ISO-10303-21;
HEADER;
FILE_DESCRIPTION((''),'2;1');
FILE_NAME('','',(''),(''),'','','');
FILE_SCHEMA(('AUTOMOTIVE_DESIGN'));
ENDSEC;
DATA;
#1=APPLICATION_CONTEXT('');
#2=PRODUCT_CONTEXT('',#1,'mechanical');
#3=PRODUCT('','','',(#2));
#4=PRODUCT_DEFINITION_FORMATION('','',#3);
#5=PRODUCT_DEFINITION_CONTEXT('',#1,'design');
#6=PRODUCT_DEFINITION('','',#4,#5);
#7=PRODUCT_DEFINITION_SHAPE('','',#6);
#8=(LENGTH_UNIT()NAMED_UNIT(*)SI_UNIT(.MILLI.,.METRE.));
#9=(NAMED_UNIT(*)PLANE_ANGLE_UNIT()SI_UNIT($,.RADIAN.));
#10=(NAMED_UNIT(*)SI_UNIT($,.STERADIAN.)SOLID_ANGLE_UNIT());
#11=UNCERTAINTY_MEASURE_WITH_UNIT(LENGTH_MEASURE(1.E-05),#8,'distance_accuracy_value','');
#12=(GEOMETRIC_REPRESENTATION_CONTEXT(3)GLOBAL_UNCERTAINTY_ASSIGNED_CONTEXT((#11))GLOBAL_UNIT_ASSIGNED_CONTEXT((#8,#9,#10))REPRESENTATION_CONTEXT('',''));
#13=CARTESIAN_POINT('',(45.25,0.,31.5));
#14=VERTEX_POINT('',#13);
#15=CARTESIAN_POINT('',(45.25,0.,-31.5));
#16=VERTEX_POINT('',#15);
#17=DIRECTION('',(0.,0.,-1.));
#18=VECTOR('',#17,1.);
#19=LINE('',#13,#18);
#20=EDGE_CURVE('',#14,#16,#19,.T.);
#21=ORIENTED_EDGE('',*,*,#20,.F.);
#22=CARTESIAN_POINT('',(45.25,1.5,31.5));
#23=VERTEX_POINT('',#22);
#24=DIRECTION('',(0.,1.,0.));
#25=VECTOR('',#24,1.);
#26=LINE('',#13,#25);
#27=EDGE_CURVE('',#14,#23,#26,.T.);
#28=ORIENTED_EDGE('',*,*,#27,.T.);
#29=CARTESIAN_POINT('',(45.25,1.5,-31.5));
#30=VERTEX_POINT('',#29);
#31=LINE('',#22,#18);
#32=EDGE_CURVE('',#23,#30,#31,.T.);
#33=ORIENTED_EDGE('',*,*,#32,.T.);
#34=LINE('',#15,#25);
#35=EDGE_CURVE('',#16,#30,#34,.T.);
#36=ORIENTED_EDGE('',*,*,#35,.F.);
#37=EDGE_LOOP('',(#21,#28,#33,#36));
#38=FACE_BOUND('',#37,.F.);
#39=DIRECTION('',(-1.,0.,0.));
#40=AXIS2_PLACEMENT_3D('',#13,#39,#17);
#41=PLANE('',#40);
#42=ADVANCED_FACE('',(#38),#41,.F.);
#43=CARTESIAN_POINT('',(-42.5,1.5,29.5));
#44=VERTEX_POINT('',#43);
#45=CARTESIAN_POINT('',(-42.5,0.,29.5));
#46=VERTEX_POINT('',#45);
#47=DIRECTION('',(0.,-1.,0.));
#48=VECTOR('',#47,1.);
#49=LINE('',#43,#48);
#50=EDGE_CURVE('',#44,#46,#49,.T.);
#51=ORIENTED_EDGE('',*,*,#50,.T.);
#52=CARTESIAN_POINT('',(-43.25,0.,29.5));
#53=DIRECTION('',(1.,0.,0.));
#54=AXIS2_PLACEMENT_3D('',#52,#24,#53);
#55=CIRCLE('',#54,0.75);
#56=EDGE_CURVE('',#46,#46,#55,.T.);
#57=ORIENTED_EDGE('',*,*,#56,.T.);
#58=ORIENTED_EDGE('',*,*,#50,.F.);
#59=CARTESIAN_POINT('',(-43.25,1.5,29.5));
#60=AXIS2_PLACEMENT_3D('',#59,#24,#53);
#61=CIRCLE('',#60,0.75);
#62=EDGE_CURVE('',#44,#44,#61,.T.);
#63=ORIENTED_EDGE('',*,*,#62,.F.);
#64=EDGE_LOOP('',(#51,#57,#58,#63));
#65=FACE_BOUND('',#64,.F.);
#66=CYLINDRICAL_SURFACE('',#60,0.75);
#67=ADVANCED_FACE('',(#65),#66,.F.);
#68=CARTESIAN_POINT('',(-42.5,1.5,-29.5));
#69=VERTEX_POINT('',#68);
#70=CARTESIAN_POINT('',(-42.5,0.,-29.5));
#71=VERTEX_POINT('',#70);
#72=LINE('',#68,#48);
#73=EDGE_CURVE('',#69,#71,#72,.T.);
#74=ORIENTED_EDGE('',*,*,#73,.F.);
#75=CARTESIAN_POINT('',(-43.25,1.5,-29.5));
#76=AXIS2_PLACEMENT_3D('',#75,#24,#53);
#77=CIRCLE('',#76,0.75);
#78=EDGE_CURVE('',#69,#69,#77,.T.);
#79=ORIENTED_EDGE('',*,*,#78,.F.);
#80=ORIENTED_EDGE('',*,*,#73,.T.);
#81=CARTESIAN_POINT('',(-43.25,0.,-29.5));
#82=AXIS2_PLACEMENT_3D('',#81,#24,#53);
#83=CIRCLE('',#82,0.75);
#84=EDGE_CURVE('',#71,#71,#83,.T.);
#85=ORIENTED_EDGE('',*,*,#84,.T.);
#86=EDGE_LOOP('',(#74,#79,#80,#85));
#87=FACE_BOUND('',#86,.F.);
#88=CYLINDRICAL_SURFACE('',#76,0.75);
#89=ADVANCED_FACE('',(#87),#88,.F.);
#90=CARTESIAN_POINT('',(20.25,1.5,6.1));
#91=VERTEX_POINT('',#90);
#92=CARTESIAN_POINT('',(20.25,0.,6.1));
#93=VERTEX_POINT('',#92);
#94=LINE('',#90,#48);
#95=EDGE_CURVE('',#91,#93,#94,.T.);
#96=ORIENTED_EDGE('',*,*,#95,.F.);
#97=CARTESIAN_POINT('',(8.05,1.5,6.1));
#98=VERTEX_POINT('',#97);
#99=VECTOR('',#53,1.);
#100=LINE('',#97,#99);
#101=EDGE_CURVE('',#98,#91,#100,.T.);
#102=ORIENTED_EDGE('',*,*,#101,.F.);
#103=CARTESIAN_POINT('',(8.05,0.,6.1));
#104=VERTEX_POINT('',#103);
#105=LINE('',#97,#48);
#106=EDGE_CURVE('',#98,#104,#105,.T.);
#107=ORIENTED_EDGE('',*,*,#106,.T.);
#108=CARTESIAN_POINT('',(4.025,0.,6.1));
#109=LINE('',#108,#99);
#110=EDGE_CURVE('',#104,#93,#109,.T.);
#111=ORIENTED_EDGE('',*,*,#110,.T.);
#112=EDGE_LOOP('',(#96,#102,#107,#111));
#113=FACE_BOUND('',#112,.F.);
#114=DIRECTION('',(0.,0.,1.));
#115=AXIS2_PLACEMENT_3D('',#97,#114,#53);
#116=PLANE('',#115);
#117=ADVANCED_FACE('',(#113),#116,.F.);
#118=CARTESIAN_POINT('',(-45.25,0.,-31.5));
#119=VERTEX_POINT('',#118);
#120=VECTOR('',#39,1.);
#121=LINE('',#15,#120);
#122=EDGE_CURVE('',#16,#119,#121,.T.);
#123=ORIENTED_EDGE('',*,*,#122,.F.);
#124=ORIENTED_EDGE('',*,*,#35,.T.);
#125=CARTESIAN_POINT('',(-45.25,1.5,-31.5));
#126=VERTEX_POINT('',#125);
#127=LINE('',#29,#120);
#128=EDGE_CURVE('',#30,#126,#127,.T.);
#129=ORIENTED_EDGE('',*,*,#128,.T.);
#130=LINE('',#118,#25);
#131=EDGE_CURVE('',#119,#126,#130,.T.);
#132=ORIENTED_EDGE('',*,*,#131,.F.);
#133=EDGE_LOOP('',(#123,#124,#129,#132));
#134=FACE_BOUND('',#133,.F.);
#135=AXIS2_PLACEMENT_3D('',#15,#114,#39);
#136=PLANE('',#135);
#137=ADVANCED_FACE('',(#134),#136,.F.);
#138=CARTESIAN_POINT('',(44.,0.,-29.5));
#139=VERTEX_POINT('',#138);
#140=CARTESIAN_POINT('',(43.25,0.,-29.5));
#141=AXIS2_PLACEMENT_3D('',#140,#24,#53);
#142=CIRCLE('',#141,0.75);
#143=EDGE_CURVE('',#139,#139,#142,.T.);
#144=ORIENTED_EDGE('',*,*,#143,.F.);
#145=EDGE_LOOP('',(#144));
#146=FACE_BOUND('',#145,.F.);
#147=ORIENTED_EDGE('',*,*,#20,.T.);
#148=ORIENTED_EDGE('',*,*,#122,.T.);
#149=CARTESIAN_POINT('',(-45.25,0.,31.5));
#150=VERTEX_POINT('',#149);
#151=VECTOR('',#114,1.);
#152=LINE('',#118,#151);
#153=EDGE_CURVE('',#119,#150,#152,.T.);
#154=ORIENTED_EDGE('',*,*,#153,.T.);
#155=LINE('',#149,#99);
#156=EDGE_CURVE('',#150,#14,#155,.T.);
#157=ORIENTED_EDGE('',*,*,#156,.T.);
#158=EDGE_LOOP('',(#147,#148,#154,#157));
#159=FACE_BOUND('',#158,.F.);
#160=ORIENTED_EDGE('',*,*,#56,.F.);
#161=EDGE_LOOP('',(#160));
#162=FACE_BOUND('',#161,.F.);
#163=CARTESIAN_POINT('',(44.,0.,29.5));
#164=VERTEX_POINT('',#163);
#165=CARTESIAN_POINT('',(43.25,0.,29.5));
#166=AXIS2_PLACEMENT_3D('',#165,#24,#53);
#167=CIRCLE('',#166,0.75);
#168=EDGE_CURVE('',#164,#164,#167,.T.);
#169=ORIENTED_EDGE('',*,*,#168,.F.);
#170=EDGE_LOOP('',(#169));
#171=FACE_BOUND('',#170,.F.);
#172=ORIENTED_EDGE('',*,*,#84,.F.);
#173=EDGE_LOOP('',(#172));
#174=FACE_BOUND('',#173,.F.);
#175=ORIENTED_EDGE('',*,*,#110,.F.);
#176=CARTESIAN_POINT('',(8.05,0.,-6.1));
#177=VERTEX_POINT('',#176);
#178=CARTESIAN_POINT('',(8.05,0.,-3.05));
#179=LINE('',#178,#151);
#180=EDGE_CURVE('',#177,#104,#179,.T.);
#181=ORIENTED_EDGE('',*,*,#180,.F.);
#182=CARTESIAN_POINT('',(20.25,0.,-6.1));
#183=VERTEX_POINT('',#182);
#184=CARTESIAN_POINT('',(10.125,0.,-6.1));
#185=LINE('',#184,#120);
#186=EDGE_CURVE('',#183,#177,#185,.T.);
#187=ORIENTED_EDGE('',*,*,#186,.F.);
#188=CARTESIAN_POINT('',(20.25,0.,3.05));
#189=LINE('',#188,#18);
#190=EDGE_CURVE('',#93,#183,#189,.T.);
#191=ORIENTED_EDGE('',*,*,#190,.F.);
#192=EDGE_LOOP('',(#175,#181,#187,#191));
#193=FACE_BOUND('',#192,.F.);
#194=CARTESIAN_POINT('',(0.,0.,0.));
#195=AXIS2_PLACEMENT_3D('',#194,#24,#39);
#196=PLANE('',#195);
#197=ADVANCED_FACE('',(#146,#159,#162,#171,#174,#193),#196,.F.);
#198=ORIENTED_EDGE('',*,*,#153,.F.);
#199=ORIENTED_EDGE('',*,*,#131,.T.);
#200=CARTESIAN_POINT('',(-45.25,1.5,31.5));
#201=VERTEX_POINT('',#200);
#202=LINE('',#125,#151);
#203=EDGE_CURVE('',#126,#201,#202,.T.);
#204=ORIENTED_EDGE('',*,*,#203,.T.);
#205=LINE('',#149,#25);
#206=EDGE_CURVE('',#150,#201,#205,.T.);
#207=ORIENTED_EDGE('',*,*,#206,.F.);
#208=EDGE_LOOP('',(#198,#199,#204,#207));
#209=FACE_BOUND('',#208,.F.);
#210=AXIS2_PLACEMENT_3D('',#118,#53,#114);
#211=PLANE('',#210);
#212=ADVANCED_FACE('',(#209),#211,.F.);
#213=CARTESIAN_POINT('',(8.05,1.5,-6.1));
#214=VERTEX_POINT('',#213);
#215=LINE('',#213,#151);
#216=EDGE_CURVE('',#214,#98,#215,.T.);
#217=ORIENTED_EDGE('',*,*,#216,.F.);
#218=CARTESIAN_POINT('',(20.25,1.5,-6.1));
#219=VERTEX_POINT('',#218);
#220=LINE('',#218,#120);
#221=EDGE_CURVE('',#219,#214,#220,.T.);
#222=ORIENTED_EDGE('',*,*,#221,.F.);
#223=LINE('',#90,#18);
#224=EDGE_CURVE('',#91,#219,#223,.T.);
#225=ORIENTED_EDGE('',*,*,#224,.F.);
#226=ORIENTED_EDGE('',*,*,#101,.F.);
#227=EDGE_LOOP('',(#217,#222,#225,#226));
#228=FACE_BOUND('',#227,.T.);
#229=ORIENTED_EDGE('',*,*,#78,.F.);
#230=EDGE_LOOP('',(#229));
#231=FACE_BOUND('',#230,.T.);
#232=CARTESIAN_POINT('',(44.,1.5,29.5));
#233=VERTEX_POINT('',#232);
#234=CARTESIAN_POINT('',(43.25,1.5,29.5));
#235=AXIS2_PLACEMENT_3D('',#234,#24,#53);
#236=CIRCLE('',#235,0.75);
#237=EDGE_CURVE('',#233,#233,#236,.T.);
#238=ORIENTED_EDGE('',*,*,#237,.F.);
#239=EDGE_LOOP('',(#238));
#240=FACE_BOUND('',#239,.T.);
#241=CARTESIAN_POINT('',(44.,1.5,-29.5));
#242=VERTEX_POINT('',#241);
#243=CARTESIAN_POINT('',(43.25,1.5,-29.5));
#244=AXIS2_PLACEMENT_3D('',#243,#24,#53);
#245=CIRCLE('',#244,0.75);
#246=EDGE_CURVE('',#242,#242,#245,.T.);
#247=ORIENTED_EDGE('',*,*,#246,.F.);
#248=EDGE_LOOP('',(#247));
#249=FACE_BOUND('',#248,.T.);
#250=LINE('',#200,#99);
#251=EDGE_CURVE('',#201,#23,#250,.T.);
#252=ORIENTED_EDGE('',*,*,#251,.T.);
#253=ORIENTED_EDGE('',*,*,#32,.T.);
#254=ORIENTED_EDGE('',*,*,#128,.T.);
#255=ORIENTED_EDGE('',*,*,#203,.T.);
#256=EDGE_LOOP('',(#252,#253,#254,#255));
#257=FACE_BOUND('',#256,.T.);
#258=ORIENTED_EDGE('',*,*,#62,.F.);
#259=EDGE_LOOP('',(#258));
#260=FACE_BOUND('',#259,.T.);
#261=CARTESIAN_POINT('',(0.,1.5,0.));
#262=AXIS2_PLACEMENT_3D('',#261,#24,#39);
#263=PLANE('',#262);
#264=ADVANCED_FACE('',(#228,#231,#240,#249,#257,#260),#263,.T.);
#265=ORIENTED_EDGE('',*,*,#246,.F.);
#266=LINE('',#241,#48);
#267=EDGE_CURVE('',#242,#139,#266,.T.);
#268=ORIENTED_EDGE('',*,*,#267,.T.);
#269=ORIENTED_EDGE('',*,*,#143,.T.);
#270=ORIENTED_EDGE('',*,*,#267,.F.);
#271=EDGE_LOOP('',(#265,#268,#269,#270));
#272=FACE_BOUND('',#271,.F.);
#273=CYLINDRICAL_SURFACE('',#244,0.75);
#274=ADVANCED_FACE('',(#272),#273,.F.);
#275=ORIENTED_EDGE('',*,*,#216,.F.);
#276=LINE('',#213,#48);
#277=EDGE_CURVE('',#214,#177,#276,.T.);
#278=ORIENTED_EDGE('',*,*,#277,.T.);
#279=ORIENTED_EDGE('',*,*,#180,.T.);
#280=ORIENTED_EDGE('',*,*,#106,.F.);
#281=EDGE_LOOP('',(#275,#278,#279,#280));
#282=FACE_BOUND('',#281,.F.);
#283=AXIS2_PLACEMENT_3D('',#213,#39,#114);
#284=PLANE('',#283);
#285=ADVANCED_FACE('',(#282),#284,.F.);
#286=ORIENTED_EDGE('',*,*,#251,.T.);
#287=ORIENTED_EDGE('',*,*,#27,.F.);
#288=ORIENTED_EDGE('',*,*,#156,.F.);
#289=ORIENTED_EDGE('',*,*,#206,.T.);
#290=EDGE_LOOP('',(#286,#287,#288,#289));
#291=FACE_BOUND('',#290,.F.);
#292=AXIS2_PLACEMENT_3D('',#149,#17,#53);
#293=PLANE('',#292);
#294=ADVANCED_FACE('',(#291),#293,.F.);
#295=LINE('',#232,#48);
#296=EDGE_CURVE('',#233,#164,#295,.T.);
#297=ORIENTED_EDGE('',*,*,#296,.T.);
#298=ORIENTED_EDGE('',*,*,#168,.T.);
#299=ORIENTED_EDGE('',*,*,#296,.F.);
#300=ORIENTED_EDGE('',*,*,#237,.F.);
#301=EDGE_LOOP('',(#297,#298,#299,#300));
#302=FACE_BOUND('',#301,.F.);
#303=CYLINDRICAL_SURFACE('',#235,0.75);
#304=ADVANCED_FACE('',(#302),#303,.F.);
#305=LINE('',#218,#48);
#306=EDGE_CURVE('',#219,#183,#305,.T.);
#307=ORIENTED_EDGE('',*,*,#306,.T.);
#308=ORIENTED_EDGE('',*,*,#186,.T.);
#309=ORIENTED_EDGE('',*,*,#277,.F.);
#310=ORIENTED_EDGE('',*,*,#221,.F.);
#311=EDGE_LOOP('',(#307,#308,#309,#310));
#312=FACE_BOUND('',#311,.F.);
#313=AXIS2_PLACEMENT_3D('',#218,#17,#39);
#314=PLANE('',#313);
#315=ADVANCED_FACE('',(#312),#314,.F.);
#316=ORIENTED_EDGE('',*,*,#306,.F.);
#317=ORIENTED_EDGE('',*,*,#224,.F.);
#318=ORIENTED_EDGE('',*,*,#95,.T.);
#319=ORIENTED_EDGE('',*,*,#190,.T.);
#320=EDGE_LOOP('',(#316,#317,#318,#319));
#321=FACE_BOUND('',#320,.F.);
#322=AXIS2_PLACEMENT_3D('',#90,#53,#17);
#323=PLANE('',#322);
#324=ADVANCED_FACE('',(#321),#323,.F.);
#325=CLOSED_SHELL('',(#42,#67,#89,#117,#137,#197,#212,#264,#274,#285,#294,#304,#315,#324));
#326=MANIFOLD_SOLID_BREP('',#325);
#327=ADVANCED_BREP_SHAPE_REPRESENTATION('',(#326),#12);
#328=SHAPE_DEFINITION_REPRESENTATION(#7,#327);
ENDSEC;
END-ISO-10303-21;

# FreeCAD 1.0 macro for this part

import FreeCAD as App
import Part
import Sketcher


def add_polygon(sketch, points):
    """Adds a closed chain of lines whose ends are joined by coincident constraints."""
    first, n = sketch.GeometryCount, len(points)
    for a, b in zip(points, points[1:] + points[:1]):
        sketch.addGeometry(Part.LineSegment(App.Vector(*a, 0), App.Vector(*b, 0)), False)
    for i in range(n):
        sketch.addConstraint(Sketcher.Constraint("Coincident", first + i, 2, first + (i + 1) % n, 1))

doc = App.newDocument("Part")
body = doc.addObject("PartDesign::Body", "Body")

# Sketch on XZ plane
sketch1 = body.newObject("Sketcher::SketchObject", "Sketch")
sketch1.AttachmentSupport = (doc.getObject("XZ_Plane"), [""])
sketch1.MapMode = "FlatFace"
add_polygon(sketch1, [(-45.25, -31.5), (-45.25, 31.5), (45.25, 31.5), (45.25, -31.5)])  # lines 0-3
sketch1.addConstraint(Sketcher.Constraint("Vertical", 0))
sketch1.addConstraint(Sketcher.Constraint("Horizontal", 1))
sketch1.addConstraint(Sketcher.Constraint("Vertical", 2))
sketch1.addConstraint(Sketcher.Constraint("Horizontal", 3))
sketch1.addConstraint(Sketcher.Constraint("Symmetric", 0, 2, 2, 2, -1, 1))
sketch1.addConstraint(Sketcher.Constraint("DistanceY", 0, 1, 0, 2, 63.0))
sketch1.addConstraint(Sketcher.Constraint("DistanceX", 1, 1, 1, 2, 90.5))
pad1 = body.newObject("PartDesign::Pad", "Pad")
pad1.Profile = sketch1
pad1.Length = 1.5
pad1.Reversed = True

# Sketch on XZ plane
sketch2 = body.newObject("Sketcher::SketchObject", "Sketch001")
sketch2.AttachmentSupport = (doc.getObject("XZ_Plane"), [""])
sketch2.MapMode = "FlatFace"
sketch2.AttachmentOffset = App.Placement(App.Vector(0, 0, -1.5), App.Rotation())
sketch2.addGeometry(Part.Circle(App.Vector(-43.25, 29.5, 0), App.Vector(0, 0, 1), 0.75), False)
sketch2.addGeometry(Part.Circle(App.Vector(-43.25, -29.5, 0), App.Vector(0, 0, 1), 0.75), False)
sketch2.addGeometry(Part.Circle(App.Vector(43.25, 29.5, 0), App.Vector(0, 0, 1), 0.75), False)
sketch2.addGeometry(Part.Circle(App.Vector(43.25, -29.5, 0), App.Vector(0, 0, 1), 0.75), False)
sketch2.addConstraint(Sketcher.Constraint("Equal", 0, 1))
sketch2.addConstraint(Sketcher.Constraint("Equal", 1, 2))
sketch2.addConstraint(Sketcher.Constraint("Equal", 2, 3))
sketch2.addConstraint(Sketcher.Constraint("Symmetric", 1, 3, 2, 3, -1, 1))
sketch2.addConstraint(Sketcher.Constraint("Symmetric", 0, 3, 3, 3, -1, 1))
sketch2.addConstraint(Sketcher.Constraint("Symmetric", 0, 3, 2, 3, -2))
sketch2.addConstraint(Sketcher.Constraint("Diameter", 0, 1.5))
sketch2.addConstraint(Sketcher.Constraint("DistanceY", 1, 3, 0, 3, 59.0))
sketch2.addConstraint(Sketcher.Constraint("DistanceX", 0, 3, 2, 3, 86.5))
pocket1 = body.newObject("PartDesign::Pocket", "Pocket")
pocket1.Profile = sketch2
pocket1.Length = 1.5
pocket1.Reversed = True

# Sketch on XZ plane
sketch3 = body.newObject("Sketcher::SketchObject", "Sketch002")
sketch3.AttachmentSupport = (doc.getObject("XZ_Plane"), [""])
sketch3.MapMode = "FlatFace"
sketch3.AttachmentOffset = App.Placement(App.Vector(0, 0, -1.5), App.Rotation())
add_polygon(sketch3, [(8.05, -6.1), (8.05, 6.1), (20.25, 6.1), (20.25, -6.1)])  # lines 0-3
sketch3.addConstraint(Sketcher.Constraint("Vertical", 0))
sketch3.addConstraint(Sketcher.Constraint("Horizontal", 1))
sketch3.addConstraint(Sketcher.Constraint("Vertical", 2))
sketch3.addConstraint(Sketcher.Constraint("Horizontal", 3))
sketch3.addConstraint(Sketcher.Constraint("Equal", 3, 0))
sketch3.addConstraint(Sketcher.Constraint("DistanceX", 1, 1, 1, 2, 12.2))
sketch3.addConstraint(Sketcher.Constraint("DistanceY", -1, 1, 0, 2, 6.1))
sketch3.addConstraint(Sketcher.Constraint("DistanceX", -1, 1, 0, 2, 8.05))
pocket2 = body.newObject("PartDesign::Pocket", "Pocket001")
pocket2.Profile = sketch3
pocket2.Length = 10
pocket2.Reversed = True

doc.recompute()
